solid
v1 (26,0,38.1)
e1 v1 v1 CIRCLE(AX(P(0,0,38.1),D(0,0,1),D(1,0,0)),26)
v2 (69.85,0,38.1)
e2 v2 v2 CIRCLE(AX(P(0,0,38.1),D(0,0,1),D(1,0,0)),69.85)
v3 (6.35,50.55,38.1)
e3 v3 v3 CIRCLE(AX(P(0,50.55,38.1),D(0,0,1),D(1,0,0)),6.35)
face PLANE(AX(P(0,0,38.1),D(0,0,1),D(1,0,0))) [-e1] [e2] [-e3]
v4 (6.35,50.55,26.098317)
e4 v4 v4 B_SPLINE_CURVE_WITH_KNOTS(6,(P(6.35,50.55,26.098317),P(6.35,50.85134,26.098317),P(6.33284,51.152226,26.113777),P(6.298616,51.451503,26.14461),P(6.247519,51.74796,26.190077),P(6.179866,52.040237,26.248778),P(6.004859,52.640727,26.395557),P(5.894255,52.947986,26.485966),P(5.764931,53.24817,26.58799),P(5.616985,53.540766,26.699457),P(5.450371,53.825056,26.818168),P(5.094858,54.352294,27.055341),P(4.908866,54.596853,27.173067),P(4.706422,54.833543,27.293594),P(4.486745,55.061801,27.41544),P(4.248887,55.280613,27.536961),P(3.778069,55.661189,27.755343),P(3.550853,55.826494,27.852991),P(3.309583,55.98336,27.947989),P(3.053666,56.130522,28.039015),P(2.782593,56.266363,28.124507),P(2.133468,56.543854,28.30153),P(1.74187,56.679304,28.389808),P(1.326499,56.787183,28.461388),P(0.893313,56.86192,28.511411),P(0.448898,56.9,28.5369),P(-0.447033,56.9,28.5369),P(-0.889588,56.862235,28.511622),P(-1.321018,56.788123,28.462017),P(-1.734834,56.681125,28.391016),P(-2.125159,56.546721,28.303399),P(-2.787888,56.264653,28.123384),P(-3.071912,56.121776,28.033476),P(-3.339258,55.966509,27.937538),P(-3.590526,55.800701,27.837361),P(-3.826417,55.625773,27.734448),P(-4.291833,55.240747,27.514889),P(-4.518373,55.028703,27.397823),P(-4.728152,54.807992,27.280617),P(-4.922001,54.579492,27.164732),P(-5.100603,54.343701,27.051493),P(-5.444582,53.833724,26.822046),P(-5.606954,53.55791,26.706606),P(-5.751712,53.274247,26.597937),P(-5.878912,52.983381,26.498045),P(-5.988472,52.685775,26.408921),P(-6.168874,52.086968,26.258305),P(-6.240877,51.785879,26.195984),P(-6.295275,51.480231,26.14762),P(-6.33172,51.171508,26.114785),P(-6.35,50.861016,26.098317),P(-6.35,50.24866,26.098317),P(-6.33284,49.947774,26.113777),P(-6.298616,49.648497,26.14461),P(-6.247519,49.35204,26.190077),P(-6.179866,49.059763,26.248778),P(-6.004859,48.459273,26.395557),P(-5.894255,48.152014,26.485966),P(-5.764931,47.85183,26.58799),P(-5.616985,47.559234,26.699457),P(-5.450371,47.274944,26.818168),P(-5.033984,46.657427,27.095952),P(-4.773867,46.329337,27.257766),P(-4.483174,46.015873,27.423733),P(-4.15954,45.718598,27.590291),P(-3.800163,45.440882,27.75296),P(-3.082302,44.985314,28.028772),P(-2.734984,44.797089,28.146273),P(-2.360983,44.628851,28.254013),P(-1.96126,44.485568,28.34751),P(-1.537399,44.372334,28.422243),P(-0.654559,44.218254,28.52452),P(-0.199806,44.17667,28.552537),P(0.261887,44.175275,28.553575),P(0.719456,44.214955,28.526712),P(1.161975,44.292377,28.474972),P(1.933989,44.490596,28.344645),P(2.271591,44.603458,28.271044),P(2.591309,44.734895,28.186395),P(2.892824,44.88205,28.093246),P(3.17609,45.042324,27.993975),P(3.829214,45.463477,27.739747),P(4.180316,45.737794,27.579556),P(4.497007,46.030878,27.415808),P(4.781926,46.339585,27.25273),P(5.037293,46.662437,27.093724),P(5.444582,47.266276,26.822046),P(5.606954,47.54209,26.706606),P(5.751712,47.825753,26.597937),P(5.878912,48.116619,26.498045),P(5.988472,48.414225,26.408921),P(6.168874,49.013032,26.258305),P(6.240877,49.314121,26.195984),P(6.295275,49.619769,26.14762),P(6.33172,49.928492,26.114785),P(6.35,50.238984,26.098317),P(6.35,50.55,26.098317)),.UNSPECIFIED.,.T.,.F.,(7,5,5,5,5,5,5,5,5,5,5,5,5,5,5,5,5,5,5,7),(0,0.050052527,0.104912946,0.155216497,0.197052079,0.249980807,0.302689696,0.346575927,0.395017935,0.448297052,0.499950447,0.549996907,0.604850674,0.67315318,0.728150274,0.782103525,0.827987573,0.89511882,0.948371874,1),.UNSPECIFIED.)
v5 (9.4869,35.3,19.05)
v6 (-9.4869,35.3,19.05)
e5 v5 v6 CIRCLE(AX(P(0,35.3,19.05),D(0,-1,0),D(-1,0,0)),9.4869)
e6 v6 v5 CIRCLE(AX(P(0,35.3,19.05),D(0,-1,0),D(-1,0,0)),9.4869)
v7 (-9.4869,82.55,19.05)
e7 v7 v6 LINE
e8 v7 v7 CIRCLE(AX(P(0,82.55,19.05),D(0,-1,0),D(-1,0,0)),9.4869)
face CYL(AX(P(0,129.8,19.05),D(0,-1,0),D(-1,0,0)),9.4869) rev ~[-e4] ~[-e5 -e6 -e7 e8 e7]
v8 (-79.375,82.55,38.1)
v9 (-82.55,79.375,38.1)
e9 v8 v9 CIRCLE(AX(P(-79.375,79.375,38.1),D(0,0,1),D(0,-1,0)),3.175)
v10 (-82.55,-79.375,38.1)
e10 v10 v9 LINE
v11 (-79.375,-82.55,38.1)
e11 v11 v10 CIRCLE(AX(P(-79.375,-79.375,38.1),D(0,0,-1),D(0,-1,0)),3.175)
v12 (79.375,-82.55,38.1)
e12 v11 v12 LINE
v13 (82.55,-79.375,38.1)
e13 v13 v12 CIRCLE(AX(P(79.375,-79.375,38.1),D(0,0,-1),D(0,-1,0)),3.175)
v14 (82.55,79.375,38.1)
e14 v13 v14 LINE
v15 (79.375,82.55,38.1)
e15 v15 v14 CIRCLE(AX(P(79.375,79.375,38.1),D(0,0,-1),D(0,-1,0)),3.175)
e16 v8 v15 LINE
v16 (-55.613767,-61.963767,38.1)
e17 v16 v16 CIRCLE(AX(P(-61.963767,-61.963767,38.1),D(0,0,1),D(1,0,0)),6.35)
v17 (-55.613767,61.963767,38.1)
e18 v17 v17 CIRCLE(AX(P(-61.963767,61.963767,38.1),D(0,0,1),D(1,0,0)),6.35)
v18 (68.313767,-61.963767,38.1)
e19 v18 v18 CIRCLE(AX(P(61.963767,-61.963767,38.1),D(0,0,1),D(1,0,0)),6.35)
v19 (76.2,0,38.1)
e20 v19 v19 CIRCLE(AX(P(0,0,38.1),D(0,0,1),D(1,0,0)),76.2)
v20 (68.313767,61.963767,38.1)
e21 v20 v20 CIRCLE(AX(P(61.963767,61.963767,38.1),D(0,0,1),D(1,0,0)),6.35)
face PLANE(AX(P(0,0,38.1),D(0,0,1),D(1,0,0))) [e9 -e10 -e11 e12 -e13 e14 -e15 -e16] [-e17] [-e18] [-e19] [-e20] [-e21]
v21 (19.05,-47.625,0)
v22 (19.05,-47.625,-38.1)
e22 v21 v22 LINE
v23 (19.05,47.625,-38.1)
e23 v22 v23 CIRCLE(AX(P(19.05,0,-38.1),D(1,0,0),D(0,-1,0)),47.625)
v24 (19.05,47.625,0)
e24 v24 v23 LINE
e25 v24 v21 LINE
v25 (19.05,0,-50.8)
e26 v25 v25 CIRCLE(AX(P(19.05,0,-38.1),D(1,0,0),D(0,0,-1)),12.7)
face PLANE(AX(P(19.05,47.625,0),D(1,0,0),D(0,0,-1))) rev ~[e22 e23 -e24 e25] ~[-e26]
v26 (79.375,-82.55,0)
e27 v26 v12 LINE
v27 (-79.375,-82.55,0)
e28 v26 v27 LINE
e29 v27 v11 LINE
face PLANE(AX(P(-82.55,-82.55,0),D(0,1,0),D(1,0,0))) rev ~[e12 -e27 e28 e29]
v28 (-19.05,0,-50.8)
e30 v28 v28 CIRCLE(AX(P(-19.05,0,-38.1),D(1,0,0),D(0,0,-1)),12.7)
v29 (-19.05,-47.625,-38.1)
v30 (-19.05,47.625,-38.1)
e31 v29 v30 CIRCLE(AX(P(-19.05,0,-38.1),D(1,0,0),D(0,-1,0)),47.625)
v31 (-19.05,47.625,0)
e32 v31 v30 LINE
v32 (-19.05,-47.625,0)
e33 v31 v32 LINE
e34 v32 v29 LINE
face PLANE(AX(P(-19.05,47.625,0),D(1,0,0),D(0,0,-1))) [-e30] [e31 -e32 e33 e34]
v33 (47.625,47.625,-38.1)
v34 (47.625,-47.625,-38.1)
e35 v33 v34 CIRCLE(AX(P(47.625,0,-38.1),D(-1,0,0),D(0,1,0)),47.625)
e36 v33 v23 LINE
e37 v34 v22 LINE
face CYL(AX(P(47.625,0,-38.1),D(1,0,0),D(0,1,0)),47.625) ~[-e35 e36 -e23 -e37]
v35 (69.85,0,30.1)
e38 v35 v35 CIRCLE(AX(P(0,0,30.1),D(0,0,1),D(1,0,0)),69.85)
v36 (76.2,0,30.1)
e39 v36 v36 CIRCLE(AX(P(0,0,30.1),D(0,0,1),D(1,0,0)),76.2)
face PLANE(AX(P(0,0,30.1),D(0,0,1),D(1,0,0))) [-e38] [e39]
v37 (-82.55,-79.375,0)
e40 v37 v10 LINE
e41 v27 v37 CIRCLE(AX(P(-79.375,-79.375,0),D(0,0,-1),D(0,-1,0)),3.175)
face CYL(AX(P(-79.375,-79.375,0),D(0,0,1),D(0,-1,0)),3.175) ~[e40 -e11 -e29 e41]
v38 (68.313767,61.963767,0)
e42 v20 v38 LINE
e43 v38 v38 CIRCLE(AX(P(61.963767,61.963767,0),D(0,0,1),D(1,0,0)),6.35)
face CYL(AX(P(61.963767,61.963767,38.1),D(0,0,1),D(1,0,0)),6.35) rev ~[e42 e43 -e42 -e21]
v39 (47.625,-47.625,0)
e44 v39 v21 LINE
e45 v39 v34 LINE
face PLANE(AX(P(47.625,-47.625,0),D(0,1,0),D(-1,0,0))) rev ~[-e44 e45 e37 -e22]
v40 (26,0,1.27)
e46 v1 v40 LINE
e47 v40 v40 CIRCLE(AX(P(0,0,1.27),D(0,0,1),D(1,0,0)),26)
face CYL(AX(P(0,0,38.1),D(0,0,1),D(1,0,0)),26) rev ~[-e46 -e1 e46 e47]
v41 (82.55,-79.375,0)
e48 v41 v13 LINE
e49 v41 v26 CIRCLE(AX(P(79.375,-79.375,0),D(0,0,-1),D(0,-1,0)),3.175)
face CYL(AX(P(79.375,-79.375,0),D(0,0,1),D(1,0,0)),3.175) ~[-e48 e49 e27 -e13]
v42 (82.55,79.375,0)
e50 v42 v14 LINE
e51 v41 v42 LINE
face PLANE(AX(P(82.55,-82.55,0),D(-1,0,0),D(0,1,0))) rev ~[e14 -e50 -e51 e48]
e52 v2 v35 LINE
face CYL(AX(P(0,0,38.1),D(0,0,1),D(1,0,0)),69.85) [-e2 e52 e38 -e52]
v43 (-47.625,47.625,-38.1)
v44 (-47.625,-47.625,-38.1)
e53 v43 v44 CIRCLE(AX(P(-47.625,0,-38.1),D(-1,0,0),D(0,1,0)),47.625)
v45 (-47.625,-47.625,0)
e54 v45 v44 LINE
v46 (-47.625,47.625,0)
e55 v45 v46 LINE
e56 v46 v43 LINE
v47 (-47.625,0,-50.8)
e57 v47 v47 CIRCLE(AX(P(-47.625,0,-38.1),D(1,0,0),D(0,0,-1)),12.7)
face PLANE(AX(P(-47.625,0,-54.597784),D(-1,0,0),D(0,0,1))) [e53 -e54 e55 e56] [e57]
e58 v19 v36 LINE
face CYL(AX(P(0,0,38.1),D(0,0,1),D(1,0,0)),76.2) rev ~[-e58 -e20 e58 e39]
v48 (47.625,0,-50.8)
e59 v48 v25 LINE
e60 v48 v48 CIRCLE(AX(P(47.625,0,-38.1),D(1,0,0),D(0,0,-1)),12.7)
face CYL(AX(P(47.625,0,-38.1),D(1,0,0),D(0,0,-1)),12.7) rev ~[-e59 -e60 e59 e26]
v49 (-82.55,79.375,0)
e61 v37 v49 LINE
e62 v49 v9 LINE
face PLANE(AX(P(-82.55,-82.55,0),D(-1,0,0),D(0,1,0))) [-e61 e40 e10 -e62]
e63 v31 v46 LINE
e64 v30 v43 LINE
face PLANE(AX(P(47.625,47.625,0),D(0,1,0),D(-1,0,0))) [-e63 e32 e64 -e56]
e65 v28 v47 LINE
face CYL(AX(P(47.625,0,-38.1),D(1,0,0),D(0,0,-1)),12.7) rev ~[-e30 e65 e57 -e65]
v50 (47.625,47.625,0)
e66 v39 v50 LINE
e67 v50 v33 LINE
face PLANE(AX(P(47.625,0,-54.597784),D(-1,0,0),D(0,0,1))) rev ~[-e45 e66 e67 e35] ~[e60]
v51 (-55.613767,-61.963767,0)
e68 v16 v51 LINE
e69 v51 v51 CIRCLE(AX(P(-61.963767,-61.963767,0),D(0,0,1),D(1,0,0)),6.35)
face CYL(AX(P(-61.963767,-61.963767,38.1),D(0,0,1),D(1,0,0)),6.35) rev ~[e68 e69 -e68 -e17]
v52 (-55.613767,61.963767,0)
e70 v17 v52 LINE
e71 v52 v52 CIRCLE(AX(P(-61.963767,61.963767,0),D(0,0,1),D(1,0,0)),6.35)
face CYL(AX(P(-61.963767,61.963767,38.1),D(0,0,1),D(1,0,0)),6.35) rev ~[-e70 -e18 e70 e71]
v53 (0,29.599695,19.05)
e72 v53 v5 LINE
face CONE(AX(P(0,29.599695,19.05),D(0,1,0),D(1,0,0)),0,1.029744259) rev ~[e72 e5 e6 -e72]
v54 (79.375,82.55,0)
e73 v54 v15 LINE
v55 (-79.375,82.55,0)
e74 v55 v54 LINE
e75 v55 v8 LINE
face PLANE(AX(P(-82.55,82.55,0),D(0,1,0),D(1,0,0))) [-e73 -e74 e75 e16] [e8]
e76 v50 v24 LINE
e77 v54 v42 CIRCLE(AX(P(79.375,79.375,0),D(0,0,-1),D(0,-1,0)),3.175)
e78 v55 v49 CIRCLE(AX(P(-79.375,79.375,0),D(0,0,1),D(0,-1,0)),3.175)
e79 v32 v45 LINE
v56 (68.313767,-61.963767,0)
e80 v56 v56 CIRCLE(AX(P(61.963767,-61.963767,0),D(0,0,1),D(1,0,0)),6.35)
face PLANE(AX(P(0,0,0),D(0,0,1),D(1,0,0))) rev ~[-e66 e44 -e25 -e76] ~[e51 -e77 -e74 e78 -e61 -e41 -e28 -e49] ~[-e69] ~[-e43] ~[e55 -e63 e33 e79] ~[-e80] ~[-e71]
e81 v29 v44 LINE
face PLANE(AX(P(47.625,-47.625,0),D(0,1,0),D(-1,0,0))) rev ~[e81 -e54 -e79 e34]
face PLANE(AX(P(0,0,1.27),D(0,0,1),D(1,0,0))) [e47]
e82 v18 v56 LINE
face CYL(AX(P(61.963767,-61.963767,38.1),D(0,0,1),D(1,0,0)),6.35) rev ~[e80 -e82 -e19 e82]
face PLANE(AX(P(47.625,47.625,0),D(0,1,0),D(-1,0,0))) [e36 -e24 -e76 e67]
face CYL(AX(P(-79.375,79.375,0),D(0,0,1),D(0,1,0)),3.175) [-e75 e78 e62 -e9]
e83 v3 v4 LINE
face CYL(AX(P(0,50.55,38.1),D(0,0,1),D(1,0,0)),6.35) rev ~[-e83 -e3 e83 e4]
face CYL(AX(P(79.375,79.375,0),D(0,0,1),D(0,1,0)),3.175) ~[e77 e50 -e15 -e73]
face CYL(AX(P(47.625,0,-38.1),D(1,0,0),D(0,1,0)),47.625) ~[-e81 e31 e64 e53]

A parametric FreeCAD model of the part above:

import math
import FreeCAD as App
import Part
import Sketcher
from FreeCAD import Vector
Q = App.Units.Quantity


def edges_at(feature, points):
    """Names of the edges that pass closest to the given points."""
    edges = feature.Shape.Edges
    near = lambda p: min(range(len(edges)), key=lambda i: edges[i].distToShape(Part.Vertex(*p))[0])
    return sorted({f"Edge{near(p) + 1}" for p in points})


def add_polygon(sketch, points):
    """Adds a closed chain of lines whose ends are joined by coincident constraints."""
    first, n = sketch.GeometryCount, len(points)
    for a, b in zip(points, points[1:] + points[:1]):
        sketch.addGeometry(Part.LineSegment(App.Vector(*a, 0), App.Vector(*b, 0)), False)
    for i in range(n):
        sketch.addConstraint(Sketcher.Constraint("Coincident", first + i, 2, first + (i + 1) % n, 1))

doc = App.newDocument("Part")
params = doc.addObject("Spreadsheet::Sheet", "Params")
for row, (alias, value) in enumerate([
    ("sketch1_width", "6.5 in"),
    ("pad1_length", "1.5 in"),
    ("sketch2_width", "3.75 in"),
    ("pad2_length", "1.5 in"),
    ("sketch3_radius", "1.875 in"),
    ("pad3_length", "3.75 in"),
    ("sketch4_diameter", "1 in"),
    ("sketch5_width", "1.5 in"),
    ("sketch5_height", "3.375 in"),
    ("fillet_radius", "0.125 in"),
    ("pocket3_length", "1.45 in"),
    ("sketch7_diameter", "6 in"),
    ("sketch7_diameter2", "5.5 in"),
    ("pocket4_length", "8 mm"),
    ("sketch8_diameter", "0.747 in"),
    ("hole_diameter", "0.747 in"),
    ("hole_depth", "47.25 mm"),
    ("sketch9_diameter", "0.5 in"),
    ("pocket5_length", "20 mm"),
    ("sketch10_diameter", "0.5 in"),
], start=1):
    params.set(f"A{row}", alias)
    params.set(f"B{row}", "=" + value)
    params.setAlias(f"B{row}", alias)

body = doc.addObject("PartDesign::Body", "Body")

sketch1 = body.newObject("Sketcher::SketchObject", "Sketch")
sketch1.AttachmentSupport = (doc.getObject("XY_Plane"), [""])
sketch1.MapMode = "FlatFace"
add_polygon(sketch1, [(-83, 83), (-83, -83), (83, -83), (83, 83)])
sketch1.addConstraint([
    Sketcher.Constraint("Vertical", 0),
    Sketcher.Constraint("Horizontal", 1),
    Sketcher.Constraint("Vertical", 2),
    Sketcher.Constraint("Horizontal", 3),
    Sketcher.Constraint("Symmetric", 0, 2, 2, 2, -1, 1),
    Sketcher.Constraint("Equal", 3, 0),
    Sketcher.Constraint("DistanceX", 1, 1, 1, 2, Q("6.5 in")),
])
sketch1.setExpression("Constraints[10]", "Params.sketch1_width")
pad1 = body.newObject("PartDesign::Pad", "Pad")
pad1.Profile = sketch1
pad1.setExpression("Length", "Params.pad1_length")

sketch2 = body.newObject("Sketcher::SketchObject", "Sketch001")
sketch2.AttachmentSupport = (doc.getObject("XY_Plane"), [""])
sketch2.MapMode = "FlatFace"
add_polygon(sketch2, [(48, 48), (48, -48), (-48, -48), (-48, 48)])
sketch2.addConstraint([
    Sketcher.Constraint("Vertical", 0),
    Sketcher.Constraint("Horizontal", 1),
    Sketcher.Constraint("Vertical", 2),
    Sketcher.Constraint("Horizontal", 3),
    Sketcher.Constraint("Symmetric", 0, 2, 2, 2, -1, 1),
    Sketcher.Constraint("Equal", 3, 0),
    Sketcher.Constraint("DistanceX", 1, 2, 1, 1, Q("3.75 in")),
])
sketch2.setExpression("Constraints[10]", "Params.sketch2_width")
pad2 = body.newObject("PartDesign::Pad", "Pad001")
pad2.Profile = sketch2
pad2.setExpression("Length", "Params.pad2_length")
pad2.Reversed = True

sketch3 = body.newObject("Sketcher::SketchObject", "Sketch002")
sketch3.AttachmentSupport = (doc.getObject("YZ_Plane"), [""])
sketch3.MapMode = "FlatFace"
sketch3.AttachmentOffset = App.Placement(Vector(0, 0, 1.875 * 25.4), App.Rotation())
sketch3.addGeometry([
    Part.LineSegment(Vector(48, -38, 0), Vector(-48, -38, 0)),
    Part.ArcOfCircle(Part.Circle(Vector(0, -38, 0), Vector(0, 0, 1), 48), math.radians(180), math.radians(360)),
], False)
sketch3.addConstraint([
    Sketcher.Constraint("Coincident", 0, 1, 1, 2),
    Sketcher.Constraint("Coincident", 1, 1, 0, 2),
    Sketcher.Constraint("Horizontal", 0),
    Sketcher.Constraint("PointOnObject", 1, 3, -2),
    Sketcher.Constraint("Horizontal", 1, 3, 0, 1),
    Sketcher.Constraint("Radius", 1, Q("1.875 in")),
    Sketcher.Constraint("DistanceY", 1, 3, -1, 1, Q("1.5 in")),
])
sketch3.setExpression("Constraints[5]", "Params.sketch3_radius")
pad3 = body.newObject("PartDesign::Pad", "Pad002")
pad3.Profile = sketch3
pad3.setExpression("Length", "Params.pad3_length")
pad3.Reversed = True

sketch4 = body.newObject("Sketcher::SketchObject", "Sketch003")
sketch4.AttachmentSupport = (doc.getObject("YZ_Plane"), [""])
sketch4.MapMode = "FlatFace"
sketch4.AttachmentOffset = App.Placement(Vector(0, 0, 1.875 * 25.4), App.Rotation())
sketch4.addGeometry(Part.Circle(Vector(0, -38, 0), Vector(0, 0, 1), 13), False)
sketch4.addConstraint([
    Sketcher.Constraint("PointOnObject", 0, 3, -2),
    Sketcher.Constraint("Diameter", 0, Q("1 in")),
    Sketcher.Constraint("DistanceY", 0, 3, -1, 1, Q("1.5 in")),
])
sketch4.setExpression("Constraints[1]", "Params.sketch4_diameter")
pocket1 = body.newObject("PartDesign::Pocket", "Pocket")
pocket1.Profile = sketch4
pocket1.Type = "ThroughAll"

sketch5 = body.newObject("Sketcher::SketchObject", "Sketch004")
sketch5.AttachmentSupport = (doc.getObject("XZ_Plane"), [""])
sketch5.MapMode = "FlatFace"
sketch5.AttachmentOffset = App.Placement(Vector(0, 0, -1.875 * 25.4), App.Rotation())
add_polygon(sketch5, [(-19, -86), (-19, 0), (19, 0), (19, -86)])
sketch5.addConstraint([
    Sketcher.Constraint("Vertical", 0),
    Sketcher.Constraint("Horizontal", 1),
    Sketcher.Constraint("Vertical", 2),
    Sketcher.Constraint("Horizontal", 3),
    Sketcher.Constraint("Symmetric", 0, 2, 1, 2, -1, 1),
    Sketcher.Constraint("DistanceX", 1, 1, 1, 2, Q("1.5 in")),
    Sketcher.Constraint("DistanceY", 0, 1, 0, 2, Q("3.375 in")),
])
sketch5.setExpression("Constraints[9]", "Params.sketch5_width")
sketch5.setExpression("Constraints[10]", "Params.sketch5_height")
pocket2 = body.newObject("PartDesign::Pocket", "Pocket001")
pocket2.Profile = sketch5
pocket2.Type = "ThroughAll"
pocket2.Reversed = True
doc.recompute()

fillet = body.newObject("PartDesign::Fillet", "Fillet")
fillet.Base = (pocket2, edges_at(pocket2, [
    (-82.55, 82.55, 19.05),
    (82.55, 82.55, 19.05),
    (82.55, -82.55, 19.05),
    (-82.55, -82.55, 19.05),
]))
fillet.setExpression("Radius", "Params.fillet_radius")

sketch6 = body.newObject("Sketcher::SketchObject", "Sketch005")
sketch6.AttachmentSupport = (doc.getObject("XY_Plane"), [""])
sketch6.MapMode = "FlatFace"
sketch6.AttachmentOffset = App.Placement(Vector(0, 0, 1.5 * 25.4), App.Rotation())
sketch6.addGeometry(Part.Circle(Vector(0, 0, 0), Vector(0, 0, 1), 26), False)
sketch6.addConstraint([
    Sketcher.Constraint("Coincident", 0, 3, -1, 1),
    Sketcher.Constraint("Diameter", 0, Q("52 mm")),
])
pocket3 = body.newObject("PartDesign::Pocket", "Pocket002")
pocket3.Profile = sketch6
pocket3.setExpression("Length", "Params.pocket3_length")

sketch7 = body.newObject("Sketcher::SketchObject", "Sketch006")
sketch7.AttachmentSupport = (doc.getObject("XY_Plane"), [""])
sketch7.MapMode = "FlatFace"
sketch7.AttachmentOffset = App.Placement(Vector(0, 0, 1.5 * 25.4), App.Rotation())
sketch7.addGeometry([
    Part.Circle(Vector(0, 0, 0), Vector(0, 0, 1), 76),
    Part.Circle(Vector(0, 0, 0), Vector(0, 0, 1), 70),
], False)
sketch7.addConstraint([
    Sketcher.Constraint("Coincident", 0, 3, -1, 1),
    Sketcher.Constraint("Coincident", 1, 3, -1, 1),
    Sketcher.Constraint("Diameter", 0, Q("6 in")),
    Sketcher.Constraint("Diameter", 1, Q("5.5 in")),
])
sketch7.setExpression("Constraints[2]", "Params.sketch7_diameter")
sketch7.setExpression("Constraints[3]", "Params.sketch7_diameter2")
pocket4 = body.newObject("PartDesign::Pocket", "Pocket003")
pocket4.Profile = sketch7
pocket4.setExpression("Length", "Params.pocket4_length")

sketch8 = body.newObject("Sketcher::SketchObject", "Sketch007")
sketch8.AttachmentSupport = (doc.getObject("XZ_Plane"), [""])
sketch8.MapMode = "FlatFace"
sketch8.AttachmentOffset = App.Placement(Vector(0, 0, -3.25 * 25.4), App.Rotation())
sketch8.addGeometry(Part.Circle(Vector(0, 19, 0), Vector(0, 0, 1), 9), False)
sketch8.addConstraint([
    Sketcher.Constraint("PointOnObject", 0, 3, -2),
    Sketcher.Constraint("Diameter", 0, Q("0.747 in")),
    Sketcher.Constraint("DistanceY", -1, 1, 0, 3, Q("0.75 in")),
])
sketch8.setExpression("Constraints[1]", "Params.sketch8_diameter")
doc.recompute()
hole = body.newObject("PartDesign::Hole", "Hole")
hole.Profile = sketch8
hole.ThreadType = "None"
hole.setExpression("Diameter", "Params.hole_diameter")
hole.DepthType = "Dimension"
hole.setExpression("Depth", "Params.hole_depth")
hole.DrillPoint = "Angled"
hole.DrillPointAngle = 118
hole.Reversed = True

sketch9 = body.newObject("Sketcher::SketchObject", "Sketch008")
sketch9.AttachmentSupport = (doc.getObject("XY_Plane"), [""])
sketch9.MapMode = "FlatFace"
sketch9.AttachmentOffset = App.Placement(Vector(0, 0, 1.5 * 25.4), App.Rotation())
sketch9.addGeometry(Part.Circle(Vector(0, 51, 0), Vector(0, 0, 1), 6), False)
sketch9.addConstraint([
    Sketcher.Constraint("PointOnObject", 0, 3, -2),
    Sketcher.Constraint("Diameter", 0, Q("0.5 in")),
    Sketcher.Constraint("DistanceY", -1, 1, 0, 3, Q("50.55 mm")),
])
sketch9.setExpression("Constraints[1]", "Params.sketch9_diameter")
pocket5 = body.newObject("PartDesign::Pocket", "Pocket004")
pocket5.Profile = sketch9
pocket5.setExpression("Length", "Params.pocket5_length")

sketch10 = body.newObject("Sketcher::SketchObject", "Sketch009")
sketch10.AttachmentSupport = (doc.getObject("XY_Plane"), [""])
sketch10.MapMode = "FlatFace"
sketch10.AttachmentOffset = App.Placement(Vector(0, 0, 1.5 * 25.4), App.Rotation())
sketch10.addGeometry([
    Part.Circle(Vector(-62, 62, 0), Vector(0, 0, 1), 6),
    Part.Circle(Vector(62, 62, 0), Vector(0, 0, 1), 6),
    Part.Circle(Vector(62, -62, 0), Vector(0, 0, 1), 6),
    Part.Circle(Vector(-62, -62, 0), Vector(0, 0, 1), 6),
], False)
sketch10.addConstraint([
    Sketcher.Constraint("Equal", 0, 1),
    Sketcher.Constraint("Equal", 1, 2),
    Sketcher.Constraint("Equal", 2, 3),
    Sketcher.Constraint("Symmetric", 0, 3, 2, 3, -1, 1),
    Sketcher.Constraint("Symmetric", 1, 3, 3, 3, -1, 1),
    Sketcher.Constraint("Symmetric", 0, 3, 1, 3, -2),
    Sketcher.Constraint("Diameter", 0, Q("0.5 in")),
    Sketcher.Constraint("DistanceX", 0, 3, -1, 1, Q("61.963767 mm")),
    Sketcher.Constraint("DistanceY", -1, 1, 0, 3, Q("61.963767 mm")),
])
sketch10.setExpression("Constraints[6]", "Params.sketch10_diameter")
pocket6 = body.newObject("PartDesign::Pocket", "Pocket005")
pocket6.Profile = sketch10
pocket6.Type = "ThroughAll"

doc.recompute()
